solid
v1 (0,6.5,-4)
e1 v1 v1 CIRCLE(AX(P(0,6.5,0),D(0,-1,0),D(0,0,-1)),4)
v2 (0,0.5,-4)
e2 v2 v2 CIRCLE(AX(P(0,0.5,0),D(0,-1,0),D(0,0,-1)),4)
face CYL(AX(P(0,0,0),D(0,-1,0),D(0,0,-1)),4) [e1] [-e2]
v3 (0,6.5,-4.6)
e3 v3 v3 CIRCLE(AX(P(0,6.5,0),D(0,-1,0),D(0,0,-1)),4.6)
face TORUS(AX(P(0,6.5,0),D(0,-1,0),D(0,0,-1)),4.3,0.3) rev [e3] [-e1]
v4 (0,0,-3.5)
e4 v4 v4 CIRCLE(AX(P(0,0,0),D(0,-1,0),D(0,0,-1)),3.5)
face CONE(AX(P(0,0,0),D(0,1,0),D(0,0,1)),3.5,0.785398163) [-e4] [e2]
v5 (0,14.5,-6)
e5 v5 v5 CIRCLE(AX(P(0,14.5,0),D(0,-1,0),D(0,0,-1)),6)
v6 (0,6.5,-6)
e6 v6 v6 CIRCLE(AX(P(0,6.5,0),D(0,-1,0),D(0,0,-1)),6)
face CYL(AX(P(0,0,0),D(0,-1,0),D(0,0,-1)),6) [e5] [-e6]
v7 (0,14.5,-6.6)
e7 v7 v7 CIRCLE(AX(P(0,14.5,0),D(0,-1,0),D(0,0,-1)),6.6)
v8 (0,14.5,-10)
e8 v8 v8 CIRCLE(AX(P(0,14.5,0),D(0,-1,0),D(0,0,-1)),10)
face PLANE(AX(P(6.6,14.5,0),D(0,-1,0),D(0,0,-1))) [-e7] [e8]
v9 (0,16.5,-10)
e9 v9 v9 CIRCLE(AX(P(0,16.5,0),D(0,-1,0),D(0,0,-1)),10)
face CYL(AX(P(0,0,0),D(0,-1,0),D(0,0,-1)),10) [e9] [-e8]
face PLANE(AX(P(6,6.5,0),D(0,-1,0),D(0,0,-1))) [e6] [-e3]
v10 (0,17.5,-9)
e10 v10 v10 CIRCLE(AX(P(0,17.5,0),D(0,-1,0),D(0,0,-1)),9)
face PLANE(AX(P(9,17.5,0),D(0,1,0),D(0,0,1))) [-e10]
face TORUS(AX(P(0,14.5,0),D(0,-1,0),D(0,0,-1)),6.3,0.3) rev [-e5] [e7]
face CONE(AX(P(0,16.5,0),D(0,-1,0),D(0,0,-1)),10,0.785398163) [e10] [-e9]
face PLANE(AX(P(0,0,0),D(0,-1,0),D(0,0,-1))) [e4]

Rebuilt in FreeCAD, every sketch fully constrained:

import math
import FreeCAD as App
import Part
import Sketcher

V = App.Vector
Q = App.Units.Quantity

doc = App.newDocument("Part")
body = doc.addObject("PartDesign::Body", "Body")

sketch1 = body.newObject("Sketcher::SketchObject", "Sketch")
sketch1.AttachmentSupport = (doc.getObject("XY_Plane"), [""])
sketch1.MapMode = "FlatFace"
sketch1.addGeometry([
    Part.LineSegment(V(0, 0, 0), V(3.5, 0, 0)),
    Part.LineSegment(V(3.5, 0, 0), V(4, 0.5, 0)),
    Part.LineSegment(V(4, 0.5, 0), V(4, 6.5, 0)),
    Part.ArcOfCircle(Part.Circle(V(4.3, 6.5, 0), V(0, 0, 1), 0.3), math.radians(0), math.radians(180)),
    Part.LineSegment(V(4.6, 6.5, 0), V(6, 6.5, 0)),
    Part.LineSegment(V(6, 6.5, 0), V(6, 14.5, 0)),
    Part.ArcOfCircle(Part.Circle(V(6.3, 14.5, 0), V(0, 0, 1), 0.3), math.radians(0), math.radians(180)),
    Part.LineSegment(V(6.6, 14.5, 0), V(10, 14.5, 0)),
    Part.LineSegment(V(10, 14.5, 0), V(10, 16.5, 0)),
    Part.LineSegment(V(10, 16.5, 0), V(9, 17.5, 0)),
    Part.LineSegment(V(9, 17.5, 0), V(0, 17.5, 0)),
    Part.LineSegment(V(0, 17.5, 0), V(0, 0, 0)),
], False)
sketch1.addConstraint([
    Sketcher.Constraint("Coincident", 0, 2, 1, 1),
    Sketcher.Constraint("Coincident", 1, 2, 2, 1),
    Sketcher.Constraint("Tangent", 2, 2, 3, 2),
    Sketcher.Constraint("Coincident", 3, 1, 4, 1),
    Sketcher.Constraint("Coincident", 4, 2, 5, 1),
    Sketcher.Constraint("Tangent", 5, 2, 6, 2),
    Sketcher.Constraint("Coincident", 6, 1, 7, 1),
    Sketcher.Constraint("Coincident", 7, 2, 8, 1),
    Sketcher.Constraint("Coincident", 8, 2, 9, 1),
    Sketcher.Constraint("Coincident", 9, 2, 10, 1),
    Sketcher.Constraint("Coincident", 10, 2, 11, 1),
    Sketcher.Constraint("Coincident", 11, 2, 0, 1),
    Sketcher.Constraint("Horizontal", 0),
    Sketcher.Constraint("Vertical", 2),
    Sketcher.Constraint("Horizontal", 4),
    Sketcher.Constraint("Vertical", 5),
    Sketcher.Constraint("Horizontal", 7),
    Sketcher.Constraint("Vertical", 8),
    Sketcher.Constraint("Horizontal", 10),
    Sketcher.Constraint("Vertical", 11),
    Sketcher.Constraint("Coincident", 11, 2, -1, 1),
    Sketcher.Constraint("Equal", 3, 6),
    Sketcher.Constraint("Perpendicular", 1, 9),
    Sketcher.Constraint("Horizontal", 2, 2, 3, 1),
    Sketcher.Constraint("Horizontal", 5, 2, 6, 1),
    Sketcher.Constraint("Radius", 3, 0.3),
    Sketcher.Constraint("DistanceX", 10, 2, 10, 1, 9.0),
    Sketcher.Constraint("DistanceY", 2, 1, 2, 2, 6.0),
    Sketcher.Constraint("DistanceY", 5, 1, 5, 2, 8.0),
    Sketcher.Constraint("DistanceY", 8, 1, 8, 2, 2.0),
    Sketcher.Constraint("Angle", 1, Q("45 deg")),
    Sketcher.Constraint("DistanceX", 0, 1, 0, 2, 3.5),
    Sketcher.Constraint("DistanceX", 4, 1, 4, 2, 1.4),
    Sketcher.Constraint("DistanceX", 7, 1, 7, 2, 3.4),
    Sketcher.Constraint("DistanceY", 11, 2, 11, 1, 17.5),
])
revolution = body.newObject("PartDesign::Revolution", "Revolution")
revolution.Profile = sketch1
revolution.ReferenceAxis = (sketch1, ["V_Axis"])
revolution.Angle = 360

doc.recompute()
